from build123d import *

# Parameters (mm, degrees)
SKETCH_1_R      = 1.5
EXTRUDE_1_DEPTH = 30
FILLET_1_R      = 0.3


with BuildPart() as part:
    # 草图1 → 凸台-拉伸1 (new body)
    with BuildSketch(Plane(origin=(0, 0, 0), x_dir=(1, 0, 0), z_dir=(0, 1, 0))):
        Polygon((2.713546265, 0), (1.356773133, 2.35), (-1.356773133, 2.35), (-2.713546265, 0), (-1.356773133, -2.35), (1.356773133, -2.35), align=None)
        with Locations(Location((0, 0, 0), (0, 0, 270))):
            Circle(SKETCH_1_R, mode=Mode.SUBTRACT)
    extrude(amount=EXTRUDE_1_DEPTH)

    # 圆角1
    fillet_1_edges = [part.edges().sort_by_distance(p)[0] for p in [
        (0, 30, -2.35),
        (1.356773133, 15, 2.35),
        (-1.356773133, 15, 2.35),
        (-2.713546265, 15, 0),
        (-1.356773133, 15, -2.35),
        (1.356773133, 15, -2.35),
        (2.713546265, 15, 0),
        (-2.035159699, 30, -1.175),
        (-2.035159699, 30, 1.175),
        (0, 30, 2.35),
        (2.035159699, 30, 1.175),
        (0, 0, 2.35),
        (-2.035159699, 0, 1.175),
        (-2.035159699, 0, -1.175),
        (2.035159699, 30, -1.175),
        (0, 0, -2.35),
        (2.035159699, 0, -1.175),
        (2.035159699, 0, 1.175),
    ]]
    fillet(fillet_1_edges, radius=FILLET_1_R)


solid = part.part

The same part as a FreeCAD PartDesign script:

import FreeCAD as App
import Part
import Sketcher
from FreeCAD import Vector
Q = App.Units.Quantity


def edges_at(feature, points):
    """Names of the edges that pass closest to the given points."""
    edges = feature.Shape.Edges
    near = lambda p: min(range(len(edges)), key=lambda i: edges[i].distToShape(Part.Vertex(*p))[0])
    return sorted({f"Edge{near(p) + 1}" for p in points})

doc = App.newDocument("Part")
body = doc.addObject("PartDesign::Body", "Body")

sketch1 = body.newObject("Sketcher::SketchObject", "Sketch")
sketch1.AttachmentSupport = (doc.getObject("XZ_Plane"), [""])
sketch1.MapMode = "FlatFace"
sketch1.addGeometry([
    Part.LineSegment(Vector(2.7, 0, 0), Vector(1.4, -2.4, 0)),
    Part.LineSegment(Vector(1.4, -2.4, 0), Vector(-1.4, -2.4, 0)),
    Part.LineSegment(Vector(-1.4, -2.4, 0), Vector(-2.7, 0, 0)),
    Part.LineSegment(Vector(-2.7, 0, 0), Vector(-1.4, 2.4, 0)),
    Part.LineSegment(Vector(-1.4, 2.4, 0), Vector(1.4, 2.4, 0)),
    Part.LineSegment(Vector(1.4, 2.4, 0), Vector(2.7, 0, 0)),
    Part.Circle(Vector(0, 0, 0), Vector(0, 0, 1), 1.5),
], False)
sketch1.addConstraint([
    Sketcher.Constraint("Coincident", 0, 2, 1, 1),
    Sketcher.Constraint("Coincident", 1, 2, 2, 1),
    Sketcher.Constraint("Coincident", 2, 2, 3, 1),
    Sketcher.Constraint("Coincident", 3, 2, 4, 1),
    Sketcher.Constraint("Coincident", 4, 2, 5, 1),
    Sketcher.Constraint("Coincident", 5, 2, 0, 1),
    Sketcher.Constraint("Horizontal", 1),
    Sketcher.Constraint("Horizontal", 4),
    Sketcher.Constraint("Coincident", 6, 3, -1, 1),
    Sketcher.Constraint("Symmetric", 0, 2, 3, 2, -1, 1),
    Sketcher.Constraint("Symmetric", 2, 2, 5, 2, -1, 1),
    Sketcher.Constraint("PointOnObject", 2, 2, -1),
    Sketcher.Constraint("Parallel", 2, 5),
    Sketcher.Constraint("Vertical", 1, 2, 3, 2),
    Sketcher.Constraint("Diameter", 6, 3.0),
    Sketcher.Constraint("Angle", 0, Q("-120 deg")),
    Sketcher.Constraint("DistanceY", 1, 2, 3, 2, 4.7),
    Sketcher.Constraint("DistanceX", 1, 2, 1, 1, 2.713546),
])
pad1 = body.newObject("PartDesign::Pad", "Pad")
pad1.Profile = sketch1
pad1.Length = 30
pad1.Reversed = True
doc.recompute()

fillet = body.newObject("PartDesign::Fillet", "Fillet")
fillet.Base = (pad1, edges_at(pad1, [
    (0, 30, -2.35),
    (1.357, 15, 2.35),
    (-1.357, 15, 2.35),
    (-2.714, 15, 0),
    (-1.357, 15, -2.35),
    (1.357, 15, -2.35),
    (2.714, 15, 0),
    (-2.035, 30, -1.175),
    (-2.035, 30, 1.175),
    (0, 30, 2.35),
    (2.035, 30, 1.175),
    (0, 0, 2.35),
    (-2.035, 0, 1.175),
    (-2.035, 0, -1.175),
    (2.035, 30, -1.175),
    (0, 0, -2.35),
    (2.035, 0, -1.175),
    (2.035, 0, 1.175),
]))
fillet.Radius = 0.3

doc.recompute()
